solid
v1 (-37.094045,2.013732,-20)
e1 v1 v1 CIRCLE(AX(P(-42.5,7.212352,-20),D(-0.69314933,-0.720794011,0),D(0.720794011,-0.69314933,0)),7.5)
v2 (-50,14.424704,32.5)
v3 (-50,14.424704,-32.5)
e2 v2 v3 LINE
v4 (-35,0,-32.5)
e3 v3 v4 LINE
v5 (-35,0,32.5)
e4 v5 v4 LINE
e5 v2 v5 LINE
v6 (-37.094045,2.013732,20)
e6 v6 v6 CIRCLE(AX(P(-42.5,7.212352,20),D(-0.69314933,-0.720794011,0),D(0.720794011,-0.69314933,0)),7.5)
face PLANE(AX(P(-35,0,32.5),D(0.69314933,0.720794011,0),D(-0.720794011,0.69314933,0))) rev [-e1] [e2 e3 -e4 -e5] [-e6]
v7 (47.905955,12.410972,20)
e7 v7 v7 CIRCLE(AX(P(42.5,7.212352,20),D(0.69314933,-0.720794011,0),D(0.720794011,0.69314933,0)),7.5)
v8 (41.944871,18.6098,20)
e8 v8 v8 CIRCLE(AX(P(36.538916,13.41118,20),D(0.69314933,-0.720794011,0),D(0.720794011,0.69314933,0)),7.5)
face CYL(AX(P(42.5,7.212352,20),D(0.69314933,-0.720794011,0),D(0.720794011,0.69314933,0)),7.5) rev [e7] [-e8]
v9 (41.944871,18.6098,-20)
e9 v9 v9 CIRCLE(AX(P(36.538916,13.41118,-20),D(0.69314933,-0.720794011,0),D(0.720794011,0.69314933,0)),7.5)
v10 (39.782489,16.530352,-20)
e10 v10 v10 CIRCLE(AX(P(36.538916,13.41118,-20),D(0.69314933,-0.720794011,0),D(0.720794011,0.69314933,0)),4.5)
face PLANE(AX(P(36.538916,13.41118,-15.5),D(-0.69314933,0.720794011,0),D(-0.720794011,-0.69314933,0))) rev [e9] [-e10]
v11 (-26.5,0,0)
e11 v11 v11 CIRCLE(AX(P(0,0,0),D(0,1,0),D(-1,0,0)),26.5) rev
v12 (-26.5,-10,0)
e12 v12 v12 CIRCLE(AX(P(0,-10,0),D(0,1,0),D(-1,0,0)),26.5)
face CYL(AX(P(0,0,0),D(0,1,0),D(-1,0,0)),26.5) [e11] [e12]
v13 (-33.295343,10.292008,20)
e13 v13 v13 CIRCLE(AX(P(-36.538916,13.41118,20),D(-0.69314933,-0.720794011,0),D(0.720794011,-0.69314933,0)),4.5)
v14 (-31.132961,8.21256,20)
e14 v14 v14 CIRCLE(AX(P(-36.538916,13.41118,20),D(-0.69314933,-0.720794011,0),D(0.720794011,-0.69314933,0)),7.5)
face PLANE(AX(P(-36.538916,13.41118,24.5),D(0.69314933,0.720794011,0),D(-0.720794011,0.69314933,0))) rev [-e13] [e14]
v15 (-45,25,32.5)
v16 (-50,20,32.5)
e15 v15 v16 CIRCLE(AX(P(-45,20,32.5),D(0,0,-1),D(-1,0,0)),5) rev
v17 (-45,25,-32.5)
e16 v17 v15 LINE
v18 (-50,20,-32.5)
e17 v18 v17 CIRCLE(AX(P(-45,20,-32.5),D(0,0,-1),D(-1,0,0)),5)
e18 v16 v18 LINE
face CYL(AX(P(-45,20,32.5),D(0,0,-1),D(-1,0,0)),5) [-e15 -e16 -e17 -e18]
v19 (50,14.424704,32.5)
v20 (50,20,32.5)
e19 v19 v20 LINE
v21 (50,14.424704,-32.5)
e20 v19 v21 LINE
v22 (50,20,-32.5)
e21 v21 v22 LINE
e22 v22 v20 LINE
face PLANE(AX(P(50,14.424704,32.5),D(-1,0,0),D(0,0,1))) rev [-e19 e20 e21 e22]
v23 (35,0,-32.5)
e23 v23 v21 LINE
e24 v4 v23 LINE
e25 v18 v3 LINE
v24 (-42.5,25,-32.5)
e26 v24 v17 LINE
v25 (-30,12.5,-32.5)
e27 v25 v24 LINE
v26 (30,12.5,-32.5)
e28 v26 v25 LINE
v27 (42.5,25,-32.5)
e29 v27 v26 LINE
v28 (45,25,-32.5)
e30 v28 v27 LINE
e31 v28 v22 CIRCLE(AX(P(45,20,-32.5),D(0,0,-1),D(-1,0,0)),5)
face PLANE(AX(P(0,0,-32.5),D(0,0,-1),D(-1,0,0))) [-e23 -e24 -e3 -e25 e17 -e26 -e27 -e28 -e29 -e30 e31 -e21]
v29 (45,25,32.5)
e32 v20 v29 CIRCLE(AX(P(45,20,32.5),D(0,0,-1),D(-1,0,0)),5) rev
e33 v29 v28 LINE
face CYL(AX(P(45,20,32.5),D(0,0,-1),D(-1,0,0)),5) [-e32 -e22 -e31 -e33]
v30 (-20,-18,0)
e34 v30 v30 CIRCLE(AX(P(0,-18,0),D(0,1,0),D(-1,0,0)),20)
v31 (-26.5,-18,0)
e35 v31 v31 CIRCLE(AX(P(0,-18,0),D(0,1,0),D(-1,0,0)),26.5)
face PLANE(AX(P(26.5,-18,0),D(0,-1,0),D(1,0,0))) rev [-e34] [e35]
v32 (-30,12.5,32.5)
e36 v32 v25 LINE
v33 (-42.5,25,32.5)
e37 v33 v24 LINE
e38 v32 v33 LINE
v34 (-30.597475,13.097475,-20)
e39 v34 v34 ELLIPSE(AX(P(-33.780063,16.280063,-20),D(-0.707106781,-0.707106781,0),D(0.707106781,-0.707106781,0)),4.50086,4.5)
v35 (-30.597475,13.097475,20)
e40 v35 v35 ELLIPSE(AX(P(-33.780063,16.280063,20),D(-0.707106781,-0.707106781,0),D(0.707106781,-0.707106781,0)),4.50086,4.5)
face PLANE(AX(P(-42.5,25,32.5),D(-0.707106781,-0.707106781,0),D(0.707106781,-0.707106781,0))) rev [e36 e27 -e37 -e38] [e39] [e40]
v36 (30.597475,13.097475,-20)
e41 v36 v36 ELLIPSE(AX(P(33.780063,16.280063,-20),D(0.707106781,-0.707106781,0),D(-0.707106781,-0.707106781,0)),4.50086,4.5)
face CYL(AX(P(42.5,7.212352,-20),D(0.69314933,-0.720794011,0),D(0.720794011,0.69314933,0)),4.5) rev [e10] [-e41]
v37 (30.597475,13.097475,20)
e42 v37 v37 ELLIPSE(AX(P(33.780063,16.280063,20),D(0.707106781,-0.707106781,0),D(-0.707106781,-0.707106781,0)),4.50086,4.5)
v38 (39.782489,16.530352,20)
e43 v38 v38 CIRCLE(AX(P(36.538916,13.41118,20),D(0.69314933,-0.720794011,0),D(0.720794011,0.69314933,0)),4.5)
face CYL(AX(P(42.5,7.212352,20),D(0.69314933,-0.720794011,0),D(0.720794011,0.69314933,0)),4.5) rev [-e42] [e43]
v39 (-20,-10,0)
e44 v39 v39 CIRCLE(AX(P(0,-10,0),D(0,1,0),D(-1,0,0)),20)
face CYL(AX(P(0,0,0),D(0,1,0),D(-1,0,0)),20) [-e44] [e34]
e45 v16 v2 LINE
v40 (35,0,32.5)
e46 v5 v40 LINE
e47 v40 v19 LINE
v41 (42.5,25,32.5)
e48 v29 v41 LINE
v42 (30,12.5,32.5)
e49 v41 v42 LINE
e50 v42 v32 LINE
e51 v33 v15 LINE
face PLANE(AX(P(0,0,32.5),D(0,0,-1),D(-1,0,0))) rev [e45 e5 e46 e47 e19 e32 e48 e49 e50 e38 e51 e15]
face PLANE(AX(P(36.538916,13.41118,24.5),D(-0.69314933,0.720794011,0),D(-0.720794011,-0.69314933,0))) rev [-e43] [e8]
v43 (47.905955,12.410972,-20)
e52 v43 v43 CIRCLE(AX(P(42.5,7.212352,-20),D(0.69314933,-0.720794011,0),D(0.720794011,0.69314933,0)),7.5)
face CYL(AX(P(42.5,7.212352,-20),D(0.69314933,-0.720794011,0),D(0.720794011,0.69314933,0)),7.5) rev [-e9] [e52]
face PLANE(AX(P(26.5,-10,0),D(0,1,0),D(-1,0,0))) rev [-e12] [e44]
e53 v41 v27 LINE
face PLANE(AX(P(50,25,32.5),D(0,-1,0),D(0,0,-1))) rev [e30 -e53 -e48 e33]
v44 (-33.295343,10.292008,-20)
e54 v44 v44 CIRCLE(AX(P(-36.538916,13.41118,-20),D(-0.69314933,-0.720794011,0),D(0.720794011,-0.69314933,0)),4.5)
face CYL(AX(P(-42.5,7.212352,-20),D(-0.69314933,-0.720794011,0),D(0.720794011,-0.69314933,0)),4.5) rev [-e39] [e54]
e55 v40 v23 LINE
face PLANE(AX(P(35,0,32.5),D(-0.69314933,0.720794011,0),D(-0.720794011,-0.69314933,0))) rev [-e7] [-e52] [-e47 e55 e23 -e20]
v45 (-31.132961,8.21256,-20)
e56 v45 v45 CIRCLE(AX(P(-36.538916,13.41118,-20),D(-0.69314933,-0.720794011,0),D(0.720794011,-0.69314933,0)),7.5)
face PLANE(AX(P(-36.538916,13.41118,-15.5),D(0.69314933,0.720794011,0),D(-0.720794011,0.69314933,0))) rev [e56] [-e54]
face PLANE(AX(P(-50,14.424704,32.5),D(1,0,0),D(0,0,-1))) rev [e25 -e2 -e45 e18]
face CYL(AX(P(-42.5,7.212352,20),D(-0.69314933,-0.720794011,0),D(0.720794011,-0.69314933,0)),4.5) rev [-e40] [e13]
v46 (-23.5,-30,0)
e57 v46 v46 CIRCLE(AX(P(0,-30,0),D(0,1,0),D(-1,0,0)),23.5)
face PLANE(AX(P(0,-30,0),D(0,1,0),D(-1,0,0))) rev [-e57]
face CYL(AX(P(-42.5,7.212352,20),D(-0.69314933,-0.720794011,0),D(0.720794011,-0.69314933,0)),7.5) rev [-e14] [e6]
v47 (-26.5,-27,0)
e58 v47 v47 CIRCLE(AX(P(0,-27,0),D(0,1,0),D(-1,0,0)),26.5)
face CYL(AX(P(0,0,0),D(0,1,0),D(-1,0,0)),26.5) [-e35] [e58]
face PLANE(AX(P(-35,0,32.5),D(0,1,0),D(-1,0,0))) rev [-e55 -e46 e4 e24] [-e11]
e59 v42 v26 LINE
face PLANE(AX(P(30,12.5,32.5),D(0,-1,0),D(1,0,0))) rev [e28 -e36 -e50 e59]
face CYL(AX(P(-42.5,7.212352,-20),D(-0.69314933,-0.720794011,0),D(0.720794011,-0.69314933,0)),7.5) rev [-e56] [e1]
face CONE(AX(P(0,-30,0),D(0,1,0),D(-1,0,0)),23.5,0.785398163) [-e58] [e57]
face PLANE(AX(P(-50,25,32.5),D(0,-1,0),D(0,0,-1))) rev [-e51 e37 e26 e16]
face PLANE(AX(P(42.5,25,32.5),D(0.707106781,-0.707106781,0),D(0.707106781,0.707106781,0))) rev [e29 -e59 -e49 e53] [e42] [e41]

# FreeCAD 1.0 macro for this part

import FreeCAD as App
import Part
import Sketcher
from FreeCAD import Vector
Q = App.Units.Quantity


def edges_at(feature, points):
    """Names of the edges that pass closest to the given points."""
    edges = feature.Shape.Edges
    near = lambda p: min(range(len(edges)), key=lambda i: edges[i].distToShape(Part.Vertex(*p))[0])
    return sorted({f"Edge{near(p) + 1}" for p in points})


def add_polygon(sketch, points):
    """Adds a closed chain of lines whose ends are joined by coincident constraints."""
    first, n = sketch.GeometryCount, len(points)
    for a, b in zip(points, points[1:] + points[:1]):
        sketch.addGeometry(Part.LineSegment(App.Vector(*a, 0), App.Vector(*b, 0)), False)
    for i in range(n):
        sketch.addConstraint(Sketcher.Constraint("Coincident", first + i, 2, first + (i + 1) % n, 1))

doc = App.newDocument("Part")
body = doc.addObject("PartDesign::Body", "Body")

# Sketch on XY plane
sketch1 = doc.addObject("Sketcher::SketchObject", "Sketch")
body.addObject(sketch1)
sketch1.AttachmentSupport = (doc.XY_Plane, [""])
sketch1.MapMode = "FlatFace"
add_polygon(sketch1, [(-35, 0), (35, 0), (50, 14.424704), (50, 25), (42.5, 25), (30, 12.5), (-30, 12.5), (-42.5, 25), (-50, 25), (-50, 14.424704)])  # lines 0-9
sketch1.addConstraint(Sketcher.Constraint("Horizontal", 0))
sketch1.addConstraint(Sketcher.Constraint("Vertical", 2))
sketch1.addConstraint(Sketcher.Constraint("Horizontal", 3))
sketch1.addConstraint(Sketcher.Constraint("Horizontal", 5))
sketch1.addConstraint(Sketcher.Constraint("Horizontal", 7))
sketch1.addConstraint(Sketcher.Constraint("Vertical", 8))
sketch1.addConstraint(Sketcher.Constraint("Symmetric", 0, 2, 9, 2, -1, 1))
sketch1.addConstraint(Sketcher.Constraint("Symmetric", 3, 2, 6, 2, -2))
sketch1.addConstraint(Sketcher.Constraint("Symmetric", 1, 2, 8, 2, -2))
sketch1.addConstraint(Sketcher.Constraint("Perpendicular", 4, 6))
sketch1.addConstraint(Sketcher.Constraint("Equal", 4, 6))
sketch1.addConstraint(Sketcher.Constraint("DistanceX", 0, 1, 0, 2, 70.0))
sketch1.addConstraint(Sketcher.Constraint("DistanceX", 5, 2, 5, 1, 60.0))
sketch1.addConstraint(Sketcher.Constraint("DistanceX", 3, 2, 3, 1, 7.5))
sketch1.addConstraint(Sketcher.Constraint("DistanceX", -1, 1, 1, 2, 50.0))
sketch1.addConstraint(Sketcher.Constraint("DistanceY", -1, 1, 2, 2, 25.0))
sketch1.addConstraint(Sketcher.Constraint("DistanceY", 2, 1, 2, 2, 10.575296))
pad1 = doc.addObject("PartDesign::Pad", "Pad")
body.addObject(pad1)
pad1.Profile = sketch1
pad1.Length = 65
pad1.Midplane = True

# Sketch on XY plane
sketch2 = doc.addObject("Sketcher::SketchObject", "Sketch001")
body.addObject(sketch2)
sketch2.AttachmentSupport = (doc.XY_Plane, [""])
sketch2.MapMode = "FlatFace"
add_polygon(sketch2, [(23.5, -30), (26.5, -27), (26.5, -18), (20, -18), (20, -10), (26.5, -10), (26.5, 0), (0, 0), (0, -30)])  # lines 0-8
sketch2.addConstraint(Sketcher.Constraint("Vertical", 1))
sketch2.addConstraint(Sketcher.Constraint("Horizontal", 2))
sketch2.addConstraint(Sketcher.Constraint("Vertical", 3))
sketch2.addConstraint(Sketcher.Constraint("Horizontal", 4))
sketch2.addConstraint(Sketcher.Constraint("Vertical", 5))
sketch2.addConstraint(Sketcher.Constraint("Horizontal", 6))
sketch2.addConstraint(Sketcher.Constraint("Vertical", 7))
sketch2.addConstraint(Sketcher.Constraint("Horizontal", 8))
sketch2.addConstraint(Sketcher.Constraint("Coincident", 6, 2, -1, 1))
sketch2.addConstraint(Sketcher.Constraint("Vertical", 1, 2, 4, 2))
sketch2.addConstraint(Sketcher.Constraint("DistanceY", 1, 1, 1, 2, 9.0))
sketch2.addConstraint(Sketcher.Constraint("DistanceY", 3, 1, 3, 2, 8.0))
sketch2.addConstraint(Sketcher.Constraint("DistanceY", 5, 1, 5, 2, 10.0))
sketch2.addConstraint(Sketcher.Constraint("DistanceY", 7, 2, 7, 1, 30.0))
sketch2.addConstraint(Sketcher.Constraint("Angle", 0, Q("45 deg")))
sketch2.addConstraint(Sketcher.Constraint("DistanceX", 2, 2, 2, 1, 6.5))
sketch2.addConstraint(Sketcher.Constraint("DistanceX", 6, 2, 6, 1, 26.5))
revolution = doc.addObject("PartDesign::Revolution", "Revolution")
body.addObject(revolution)
revolution.Profile = sketch2
revolution.ReferenceAxis = (sketch2, ["V_Axis"])
revolution.Angle = 360

# Sketch on an angled plane
sketch3 = doc.addObject("Sketcher::SketchObject", "Sketch002")
body.addObject(sketch3)
sketch3.Placement = App.Placement(Vector(16.81596, -17.486626, 0), App.Rotation(Vector(-0.720794011, -0.69314933, 0), Vector(0, 0, -1), Vector(0.69314933, -0.720794011, 0), "ZXY"))
sketch3.addGeometry(Part.Circle(Vector(-35.632982, -20, 0), Vector(0, 0, 1), 4.5), False)
sketch3.addGeometry(Part.Circle(Vector(-35.632982, 20, 0), Vector(0, 0, 1), 4.5), False)
sketch3.addConstraint(Sketcher.Constraint("Equal", 0, 1))
sketch3.addConstraint(Sketcher.Constraint("Symmetric", 0, 3, 1, 3, -1))
sketch3.addConstraint(Sketcher.Constraint("Diameter", 0, 9.0))
sketch3.addConstraint(Sketcher.Constraint("DistanceY", 0, 3, -1, 1, 20.0))
sketch3.addConstraint(Sketcher.Constraint("DistanceX", 0, 3, -1, 1, 35.632982))
doc.recompute()
hole = doc.addObject("PartDesign::Hole", "Hole")
body.addObject(hole)
hole.Profile = sketch3
hole.ThreadType = "None"
hole.Diameter = 9
hole.DepthType = "ThroughAll"
hole.HoleCutType = "Counterbore"
hole.HoleCutDiameter = 15
hole.HoleCutDepth = 8.6
doc.recompute()

mirrored = doc.addObject("PartDesign::Mirrored", "Mirrored")
body.addObject(mirrored)
mirrored.Originals = [hole]
mirrored.MirrorPlane = (doc.YZ_Plane, [""])
body.Tip = mirrored
doc.recompute()

fillet = doc.addObject("PartDesign::Fillet", "Fillet")
body.addObject(fillet)
fillet.Base = (mirrored, edges_at(mirrored, [(50, 25, 0), (-50, 25, 0)]))
fillet.Radius = 5

doc.recompute()
